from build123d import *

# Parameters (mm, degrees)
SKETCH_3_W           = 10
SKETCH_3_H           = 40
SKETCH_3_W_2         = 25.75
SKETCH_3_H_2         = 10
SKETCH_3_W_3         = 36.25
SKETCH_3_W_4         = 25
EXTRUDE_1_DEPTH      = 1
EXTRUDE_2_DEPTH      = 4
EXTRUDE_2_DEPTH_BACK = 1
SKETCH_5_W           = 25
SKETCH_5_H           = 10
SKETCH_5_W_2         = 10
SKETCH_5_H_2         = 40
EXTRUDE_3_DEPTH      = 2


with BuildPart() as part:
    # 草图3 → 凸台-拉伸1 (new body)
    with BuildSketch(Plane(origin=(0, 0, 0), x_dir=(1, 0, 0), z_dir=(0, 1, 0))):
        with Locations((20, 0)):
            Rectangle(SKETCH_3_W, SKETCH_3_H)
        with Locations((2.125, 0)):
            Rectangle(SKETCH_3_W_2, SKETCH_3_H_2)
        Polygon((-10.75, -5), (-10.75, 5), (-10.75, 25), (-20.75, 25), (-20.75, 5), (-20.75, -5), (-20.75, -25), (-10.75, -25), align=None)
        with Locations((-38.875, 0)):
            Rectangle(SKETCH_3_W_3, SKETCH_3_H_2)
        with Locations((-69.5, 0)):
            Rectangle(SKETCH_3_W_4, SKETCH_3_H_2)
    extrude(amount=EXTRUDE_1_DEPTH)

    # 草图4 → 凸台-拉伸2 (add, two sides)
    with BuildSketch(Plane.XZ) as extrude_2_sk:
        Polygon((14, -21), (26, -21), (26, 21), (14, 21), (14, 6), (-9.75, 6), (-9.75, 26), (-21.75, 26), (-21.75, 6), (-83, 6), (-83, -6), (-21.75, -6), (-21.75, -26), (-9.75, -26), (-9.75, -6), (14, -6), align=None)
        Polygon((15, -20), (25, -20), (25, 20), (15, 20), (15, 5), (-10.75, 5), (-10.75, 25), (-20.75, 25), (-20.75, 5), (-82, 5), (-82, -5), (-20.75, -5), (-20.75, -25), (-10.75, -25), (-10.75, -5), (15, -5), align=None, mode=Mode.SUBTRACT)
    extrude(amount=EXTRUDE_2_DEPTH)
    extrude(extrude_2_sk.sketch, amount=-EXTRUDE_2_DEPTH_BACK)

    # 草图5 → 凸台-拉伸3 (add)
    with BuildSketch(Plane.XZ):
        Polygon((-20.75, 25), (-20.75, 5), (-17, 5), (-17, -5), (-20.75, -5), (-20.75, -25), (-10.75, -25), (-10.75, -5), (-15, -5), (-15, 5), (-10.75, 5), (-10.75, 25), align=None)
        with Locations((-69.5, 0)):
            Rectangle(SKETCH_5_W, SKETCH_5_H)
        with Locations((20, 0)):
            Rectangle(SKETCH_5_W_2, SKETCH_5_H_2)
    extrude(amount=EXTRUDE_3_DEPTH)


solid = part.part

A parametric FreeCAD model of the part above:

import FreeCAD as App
import Part
import Sketcher
Q = App.Units.Quantity

doc = App.newDocument("Part")
body = doc.addObject("PartDesign::Body", "Body")

sketch1 = body.newObject("Sketcher::SketchObject", "Sketch")
sketch1.AttachmentSupport = (doc.getObject("XZ_Plane"), [""])
sketch1.MapMode = "FlatFace"
sketch1.addGeometry(Part.LineSegment(App.Vector(15, 5, 0), App.Vector(15, 20, 0)), False)
sketch1.addGeometry(Part.LineSegment(App.Vector(15, 20, 0), App.Vector(25, 20, 0)), False)
sketch1.addGeometry(Part.LineSegment(App.Vector(25, 20, 0), App.Vector(25, -20, 0)), False)
sketch1.addGeometry(Part.LineSegment(App.Vector(25, -20, 0), App.Vector(15, -20, 0)), False)
sketch1.addGeometry(Part.LineSegment(App.Vector(15, -20, 0), App.Vector(15, -5, 0)), False)
sketch1.addGeometry(Part.LineSegment(App.Vector(15, -5, 0), App.Vector(-10.75, -5, 0)), False)
sketch1.addGeometry(Part.LineSegment(App.Vector(-10.75, -5, 0), App.Vector(-10.75, -25, 0)), False)
sketch1.addGeometry(Part.LineSegment(App.Vector(-10.75, -25, 0), App.Vector(-20.75, -25, 0)), False)
sketch1.addGeometry(Part.LineSegment(App.Vector(-20.75, -25, 0), App.Vector(-20.75, -5, 0)), False)
sketch1.addGeometry(Part.LineSegment(App.Vector(-20.75, -5, 0), App.Vector(-82, -5, 0)), False)
sketch1.addGeometry(Part.LineSegment(App.Vector(-82, -5, 0), App.Vector(-82, 5, 0)), False)
sketch1.addGeometry(Part.LineSegment(App.Vector(-82, 5, 0), App.Vector(-20.75, 5, 0)), False)
sketch1.addGeometry(Part.LineSegment(App.Vector(-20.75, 5, 0), App.Vector(-20.75, 25, 0)), False)
sketch1.addGeometry(Part.LineSegment(App.Vector(-20.75, 25, 0), App.Vector(-10.75, 25, 0)), False)
sketch1.addGeometry(Part.LineSegment(App.Vector(-10.75, 25, 0), App.Vector(-10.75, 5, 0)), False)
sketch1.addGeometry(Part.LineSegment(App.Vector(-10.75, 5, 0), App.Vector(15, 5, 0)), False)
sketch1.addConstraint(Sketcher.Constraint("Coincident", 0, 2, 1, 1))
sketch1.addConstraint(Sketcher.Constraint("Coincident", 1, 2, 2, 1))
sketch1.addConstraint(Sketcher.Constraint("Coincident", 2, 2, 3, 1))
sketch1.addConstraint(Sketcher.Constraint("Coincident", 3, 2, 4, 1))
sketch1.addConstraint(Sketcher.Constraint("Coincident", 4, 2, 5, 1))
sketch1.addConstraint(Sketcher.Constraint("Coincident", 5, 2, 6, 1))
sketch1.addConstraint(Sketcher.Constraint("Coincident", 6, 2, 7, 1))
sketch1.addConstraint(Sketcher.Constraint("Coincident", 7, 2, 8, 1))
sketch1.addConstraint(Sketcher.Constraint("Coincident", 8, 2, 9, 1))
sketch1.addConstraint(Sketcher.Constraint("Coincident", 9, 2, 10, 1))
sketch1.addConstraint(Sketcher.Constraint("Coincident", 10, 2, 11, 1))
sketch1.addConstraint(Sketcher.Constraint("Coincident", 11, 2, 12, 1))
sketch1.addConstraint(Sketcher.Constraint("Coincident", 12, 2, 13, 1))
sketch1.addConstraint(Sketcher.Constraint("Coincident", 13, 2, 14, 1))
sketch1.addConstraint(Sketcher.Constraint("Coincident", 14, 2, 15, 1))
sketch1.addConstraint(Sketcher.Constraint("Coincident", 15, 2, 0, 1))
sketch1.addConstraint(Sketcher.Constraint("Vertical", 0))
sketch1.addConstraint(Sketcher.Constraint("Horizontal", 1))
sketch1.addConstraint(Sketcher.Constraint("Vertical", 2))
sketch1.addConstraint(Sketcher.Constraint("Horizontal", 3))
sketch1.addConstraint(Sketcher.Constraint("Vertical", 4))
sketch1.addConstraint(Sketcher.Constraint("Horizontal", 5))
sketch1.addConstraint(Sketcher.Constraint("Vertical", 6))
sketch1.addConstraint(Sketcher.Constraint("Horizontal", 7))
sketch1.addConstraint(Sketcher.Constraint("Vertical", 8))
sketch1.addConstraint(Sketcher.Constraint("Horizontal", 9))
sketch1.addConstraint(Sketcher.Constraint("Vertical", 10))
sketch1.addConstraint(Sketcher.Constraint("Horizontal", 11))
sketch1.addConstraint(Sketcher.Constraint("Vertical", 12))
sketch1.addConstraint(Sketcher.Constraint("Horizontal", 13))
sketch1.addConstraint(Sketcher.Constraint("Vertical", 14))
sketch1.addConstraint(Sketcher.Constraint("Horizontal", 15))
sketch1.addConstraint(Sketcher.Constraint("Symmetric", 0, 2, 3, 2, -1))
sketch1.addConstraint(Sketcher.Constraint("Symmetric", 8, 2, 11, 2, -1))
sketch1.addConstraint(Sketcher.Constraint("Symmetric", 6, 2, 13, 2, -1))
sketch1.addConstraint(Sketcher.Constraint("Horizontal", 5, 2, 8, 2))
sketch1.addConstraint(Sketcher.Constraint("Horizontal", 11, 2, 14, 2))
sketch1.addConstraint(Sketcher.Constraint("Equal", 3, 7))
sketch1.addConstraint(Sketcher.Constraint("Equal", 13, 10))
sketch1.addConstraint(Sketcher.Constraint("DistanceX", 1, 1, 1, 2, Q("10 mm")))
sketch1.addConstraint(Sketcher.Constraint("DistanceY", 0, 1, 0, 2, Q("15 mm")))
sketch1.addConstraint(Sketcher.Constraint("DistanceY", 6, 2, 6, 1, Q("20 mm")))
sketch1.addConstraint(Sketcher.Constraint("DistanceX", -1, 1, 0, 2, Q("15 mm")))
sketch1.addConstraint(Sketcher.Constraint("DistanceX", 9, 2, -1, 1, Q("82 mm")))
sketch1.addConstraint(Sketcher.Constraint("DistanceX", 5, 2, 5, 1, Q("25.75 mm")))
pad1 = body.newObject("PartDesign::Pad", "Pad")
pad1.Profile = sketch1
pad1.Length = 1
pad1.Reversed = True

sketch2 = body.newObject("Sketcher::SketchObject", "Sketch001")
sketch2.AttachmentSupport = (doc.getObject("XZ_Plane"), [""])
sketch2.MapMode = "FlatFace"
sketch2.addGeometry(Part.LineSegment(App.Vector(14, -21, 0), App.Vector(26, -21, 0)), False)
sketch2.addGeometry(Part.LineSegment(App.Vector(26, -21, 0), App.Vector(26, 21, 0)), False)
sketch2.addGeometry(Part.LineSegment(App.Vector(26, 21, 0), App.Vector(14, 21, 0)), False)
sketch2.addGeometry(Part.LineSegment(App.Vector(14, 21, 0), App.Vector(14, 6, 0)), False)
sketch2.addGeometry(Part.LineSegment(App.Vector(14, 6, 0), App.Vector(-9.75, 6, 0)), False)
sketch2.addGeometry(Part.LineSegment(App.Vector(-9.75, 6, 0), App.Vector(-9.75, 26, 0)), False)
sketch2.addGeometry(Part.LineSegment(App.Vector(-9.75, 26, 0), App.Vector(-21.75, 26, 0)), False)
sketch2.addGeometry(Part.LineSegment(App.Vector(-21.75, 26, 0), App.Vector(-21.75, 6, 0)), False)
sketch2.addGeometry(Part.LineSegment(App.Vector(-21.75, 6, 0), App.Vector(-83, 6, 0)), False)
sketch2.addGeometry(Part.LineSegment(App.Vector(-83, 6, 0), App.Vector(-83, -6, 0)), False)
sketch2.addGeometry(Part.LineSegment(App.Vector(-83, -6, 0), App.Vector(-21.75, -6, 0)), False)
sketch2.addGeometry(Part.LineSegment(App.Vector(-21.75, -6, 0), App.Vector(-21.75, -26, 0)), False)
sketch2.addGeometry(Part.LineSegment(App.Vector(-21.75, -26, 0), App.Vector(-9.75, -26, 0)), False)
sketch2.addGeometry(Part.LineSegment(App.Vector(-9.75, -26, 0), App.Vector(-9.75, -6, 0)), False)
sketch2.addGeometry(Part.LineSegment(App.Vector(-9.75, -6, 0), App.Vector(14, -6, 0)), False)
sketch2.addGeometry(Part.LineSegment(App.Vector(14, -6, 0), App.Vector(14, -21, 0)), False)
sketch2.addGeometry(Part.LineSegment(App.Vector(25, -20, 0), App.Vector(15, -20, 0)), False)
sketch2.addGeometry(Part.LineSegment(App.Vector(15, -20, 0), App.Vector(15, -5, 0)), False)
sketch2.addGeometry(Part.LineSegment(App.Vector(15, -5, 0), App.Vector(-10.75, -5, 0)), False)
sketch2.addGeometry(Part.LineSegment(App.Vector(-10.75, -5, 0), App.Vector(-10.75, -25, 0)), False)
sketch2.addGeometry(Part.LineSegment(App.Vector(-10.75, -25, 0), App.Vector(-20.75, -25, 0)), False)
sketch2.addGeometry(Part.LineSegment(App.Vector(-20.75, -25, 0), App.Vector(-20.75, -5, 0)), False)
sketch2.addGeometry(Part.LineSegment(App.Vector(-20.75, -5, 0), App.Vector(-82, -5, 0)), False)
sketch2.addGeometry(Part.LineSegment(App.Vector(-82, -5, 0), App.Vector(-82, 5, 0)), False)
sketch2.addGeometry(Part.LineSegment(App.Vector(-82, 5, 0), App.Vector(-20.75, 5, 0)), False)
sketch2.addGeometry(Part.LineSegment(App.Vector(-20.75, 5, 0), App.Vector(-20.75, 25, 0)), False)
sketch2.addGeometry(Part.LineSegment(App.Vector(-20.75, 25, 0), App.Vector(-10.75, 25, 0)), False)
sketch2.addGeometry(Part.LineSegment(App.Vector(-10.75, 25, 0), App.Vector(-10.75, 5, 0)), False)
sketch2.addGeometry(Part.LineSegment(App.Vector(-10.75, 5, 0), App.Vector(15, 5, 0)), False)
sketch2.addGeometry(Part.LineSegment(App.Vector(15, 5, 0), App.Vector(15, 20, 0)), False)
sketch2.addGeometry(Part.LineSegment(App.Vector(15, 20, 0), App.Vector(25, 20, 0)), False)
sketch2.addGeometry(Part.LineSegment(App.Vector(25, 20, 0), App.Vector(25, -20, 0)), False)
sketch2.addConstraint(Sketcher.Constraint("Coincident", 0, 2, 1, 1))
sketch2.addConstraint(Sketcher.Constraint("Coincident", 1, 2, 2, 1))
sketch2.addConstraint(Sketcher.Constraint("Coincident", 2, 2, 3, 1))
sketch2.addConstraint(Sketcher.Constraint("Coincident", 3, 2, 4, 1))
sketch2.addConstraint(Sketcher.Constraint("Coincident", 4, 2, 5, 1))
sketch2.addConstraint(Sketcher.Constraint("Coincident", 5, 2, 6, 1))
sketch2.addConstraint(Sketcher.Constraint("Coincident", 6, 2, 7, 1))
sketch2.addConstraint(Sketcher.Constraint("Coincident", 7, 2, 8, 1))
sketch2.addConstraint(Sketcher.Constraint("Coincident", 8, 2, 9, 1))
sketch2.addConstraint(Sketcher.Constraint("Coincident", 9, 2, 10, 1))
sketch2.addConstraint(Sketcher.Constraint("Coincident", 10, 2, 11, 1))
sketch2.addConstraint(Sketcher.Constraint("Coincident", 11, 2, 12, 1))
sketch2.addConstraint(Sketcher.Constraint("Coincident", 12, 2, 13, 1))
sketch2.addConstraint(Sketcher.Constraint("Coincident", 13, 2, 14, 1))
sketch2.addConstraint(Sketcher.Constraint("Coincident", 14, 2, 15, 1))
sketch2.addConstraint(Sketcher.Constraint("Coincident", 15, 2, 0, 1))
sketch2.addConstraint(Sketcher.Constraint("Coincident", 16, 2, 17, 1))
sketch2.addConstraint(Sketcher.Constraint("Coincident", 17, 2, 18, 1))
sketch2.addConstraint(Sketcher.Constraint("Coincident", 18, 2, 19, 1))
sketch2.addConstraint(Sketcher.Constraint("Coincident", 19, 2, 20, 1))
sketch2.addConstraint(Sketcher.Constraint("Coincident", 20, 2, 21, 1))
sketch2.addConstraint(Sketcher.Constraint("Coincident", 21, 2, 22, 1))
sketch2.addConstraint(Sketcher.Constraint("Coincident", 22, 2, 23, 1))
sketch2.addConstraint(Sketcher.Constraint("Coincident", 23, 2, 24, 1))
sketch2.addConstraint(Sketcher.Constraint("Coincident", 24, 2, 25, 1))
sketch2.addConstraint(Sketcher.Constraint("Coincident", 25, 2, 26, 1))
sketch2.addConstraint(Sketcher.Constraint("Coincident", 26, 2, 27, 1))
sketch2.addConstraint(Sketcher.Constraint("Coincident", 27, 2, 28, 1))
sketch2.addConstraint(Sketcher.Constraint("Coincident", 28, 2, 29, 1))
sketch2.addConstraint(Sketcher.Constraint("Coincident", 29, 2, 30, 1))
sketch2.addConstraint(Sketcher.Constraint("Coincident", 30, 2, 31, 1))
sketch2.addConstraint(Sketcher.Constraint("Coincident", 31, 2, 16, 1))
sketch2.addConstraint(Sketcher.Constraint("Horizontal", 0))
sketch2.addConstraint(Sketcher.Constraint("Vertical", 1))
sketch2.addConstraint(Sketcher.Constraint("Horizontal", 2))
sketch2.addConstraint(Sketcher.Constraint("Vertical", 3))
sketch2.addConstraint(Sketcher.Constraint("Horizontal", 4))
sketch2.addConstraint(Sketcher.Constraint("Vertical", 5))
sketch2.addConstraint(Sketcher.Constraint("Horizontal", 6))
sketch2.addConstraint(Sketcher.Constraint("Vertical", 7))
sketch2.addConstraint(Sketcher.Constraint("Horizontal", 8))
sketch2.addConstraint(Sketcher.Constraint("Vertical", 9))
sketch2.addConstraint(Sketcher.Constraint("Horizontal", 10))
sketch2.addConstraint(Sketcher.Constraint("Vertical", 11))
sketch2.addConstraint(Sketcher.Constraint("Horizontal", 12))
sketch2.addConstraint(Sketcher.Constraint("Vertical", 13))
sketch2.addConstraint(Sketcher.Constraint("Horizontal", 14))
sketch2.addConstraint(Sketcher.Constraint("Vertical", 15))
sketch2.addConstraint(Sketcher.Constraint("Horizontal", 16))
sketch2.addConstraint(Sketcher.Constraint("Vertical", 17))
sketch2.addConstraint(Sketcher.Constraint("Horizontal", 18))
sketch2.addConstraint(Sketcher.Constraint("Vertical", 19))
sketch2.addConstraint(Sketcher.Constraint("Horizontal", 20))
sketch2.addConstraint(Sketcher.Constraint("Vertical", 21))
sketch2.addConstraint(Sketcher.Constraint("Horizontal", 22))
sketch2.addConstraint(Sketcher.Constraint("Vertical", 23))
sketch2.addConstraint(Sketcher.Constraint("Horizontal", 24))
sketch2.addConstraint(Sketcher.Constraint("Vertical", 25))
sketch2.addConstraint(Sketcher.Constraint("Horizontal", 26))
sketch2.addConstraint(Sketcher.Constraint("Vertical", 27))
sketch2.addConstraint(Sketcher.Constraint("Horizontal", 28))
sketch2.addConstraint(Sketcher.Constraint("Vertical", 29))
sketch2.addConstraint(Sketcher.Constraint("Horizontal", 30))
sketch2.addConstraint(Sketcher.Constraint("Vertical", 31))
sketch2.addConstraint(Sketcher.Constraint("Symmetric", 7, 2, 10, 2, -1))
sketch2.addConstraint(Sketcher.Constraint("Symmetric", 5, 2, 12, 2, -1))
sketch2.addConstraint(Sketcher.Constraint("Symmetric", 3, 2, 14, 2, -1))
sketch2.addConstraint(Sketcher.Constraint("Symmetric", 21, 2, 24, 2, -1))
sketch2.addConstraint(Sketcher.Constraint("Symmetric", 19, 2, 26, 2, -1))
sketch2.addConstraint(Sketcher.Constraint("Symmetric", 17, 2, 28, 2, -1))
sketch2.addConstraint(Sketcher.Constraint("Horizontal", 4, 2, 7, 2))
sketch2.addConstraint(Sketcher.Constraint("Horizontal", 18, 2, 21, 2))
sketch2.addConstraint(Sketcher.Constraint("Equal", 2, 6))
sketch2.addConstraint(Sketcher.Constraint("Equal", 16, 20))
sketch2.addConstraint(Sketcher.Constraint("Equal", 10, 22))
sketch2.addConstraint(Sketcher.Constraint("Equal", 12, 9))
sketch2.addConstraint(Sketcher.Constraint("Equal", 3, 15))
sketch2.addConstraint(Sketcher.Constraint("Equal", 15, 17))
sketch2.addConstraint(Sketcher.Constraint("Equal", 13, 19))
sketch2.addConstraint(Sketcher.Constraint("Equal", 30, 23))
sketch2.addConstraint(Sketcher.Constraint("Equal", 17, 29))
sketch2.addConstraint(Sketcher.Constraint("DistanceX", 0, 1, 0, 2, Q("12 mm")))
sketch2.addConstraint(Sketcher.Constraint("DistanceX", 16, 2, 16, 1, Q("10 mm")))
sketch2.addConstraint(Sketcher.Constraint("DistanceY", 1, 1, 1, 2, Q("42 mm")))
sketch2.addConstraint(Sketcher.Constraint("DistanceY", 5, 1, 5, 2, Q("20 mm")))
sketch2.addConstraint(Sketcher.Constraint("DistanceX", -1, 1, 0, 2, Q("26 mm")))
sketch2.addConstraint(Sketcher.Constraint("DistanceX", 8, 2, -1, 1, Q("83 mm")))
sketch2.addConstraint(Sketcher.Constraint("DistanceX", -1, 1, 16, 2, Q("15 mm")))
sketch2.addConstraint(Sketcher.Constraint("DistanceX", 22, 2, -1, 1, Q("82 mm")))
sketch2.addConstraint(Sketcher.Constraint("DistanceX", 4, 2, 4, 1, Q("23.75 mm")))
pad2 = body.newObject("PartDesign::Pad", "Pad001")
pad2.Profile = sketch2
pad2.Type = "TwoLengths"
pad2.Length = 4
pad2.Length2 = 1

sketch3 = body.newObject("Sketcher::SketchObject", "Sketch002")
sketch3.AttachmentSupport = (doc.getObject("XZ_Plane"), [""])
sketch3.MapMode = "FlatFace"
sketch3.addGeometry(Part.LineSegment(App.Vector(-20.75, 25, 0), App.Vector(-20.75, 5, 0)), False)
sketch3.addGeometry(Part.LineSegment(App.Vector(-20.75, 5, 0), App.Vector(-17, 5, 0)), False)
sketch3.addGeometry(Part.LineSegment(App.Vector(-17, 5, 0), App.Vector(-17, -5, 0)), False)
sketch3.addGeometry(Part.LineSegment(App.Vector(-17, -5, 0), App.Vector(-20.75, -5, 0)), False)
sketch3.addGeometry(Part.LineSegment(App.Vector(-20.75, -5, 0), App.Vector(-20.75, -25, 0)), False)
sketch3.addGeometry(Part.LineSegment(App.Vector(-20.75, -25, 0), App.Vector(-10.75, -25, 0)), False)
sketch3.addGeometry(Part.LineSegment(App.Vector(-10.75, -25, 0), App.Vector(-10.75, -5, 0)), False)
sketch3.addGeometry(Part.LineSegment(App.Vector(-10.75, -5, 0), App.Vector(-15, -5, 0)), False)
sketch3.addGeometry(Part.LineSegment(App.Vector(-15, -5, 0), App.Vector(-15, 5, 0)), False)
sketch3.addGeometry(Part.LineSegment(App.Vector(-15, 5, 0), App.Vector(-10.75, 5, 0)), False)
sketch3.addGeometry(Part.LineSegment(App.Vector(-10.75, 5, 0), App.Vector(-10.75, 25, 0)), False)
sketch3.addGeometry(Part.LineSegment(App.Vector(-10.75, 25, 0), App.Vector(-20.75, 25, 0)), False)
sketch3.addGeometry(Part.LineSegment(App.Vector(-82, 5, 0), App.Vector(-82, -5, 0)), False)
sketch3.addGeometry(Part.LineSegment(App.Vector(-82, -5, 0), App.Vector(-57, -5, 0)), False)
sketch3.addGeometry(Part.LineSegment(App.Vector(-57, -5, 0), App.Vector(-57, 5, 0)), False)
sketch3.addGeometry(Part.LineSegment(App.Vector(-57, 5, 0), App.Vector(-82, 5, 0)), False)
sketch3.addGeometry(Part.LineSegment(App.Vector(15, 20, 0), App.Vector(15, -20, 0)), False)
sketch3.addGeometry(Part.LineSegment(App.Vector(15, -20, 0), App.Vector(25, -20, 0)), False)
sketch3.addGeometry(Part.LineSegment(App.Vector(25, -20, 0), App.Vector(25, 20, 0)), False)
sketch3.addGeometry(Part.LineSegment(App.Vector(25, 20, 0), App.Vector(15, 20, 0)), False)
sketch3.addConstraint(Sketcher.Constraint("Coincident", 0, 2, 1, 1))
sketch3.addConstraint(Sketcher.Constraint("Coincident", 1, 2, 2, 1))
sketch3.addConstraint(Sketcher.Constraint("Coincident", 2, 2, 3, 1))
sketch3.addConstraint(Sketcher.Constraint("Coincident", 3, 2, 4, 1))
sketch3.addConstraint(Sketcher.Constraint("Coincident", 4, 2, 5, 1))
sketch3.addConstraint(Sketcher.Constraint("Coincident", 5, 2, 6, 1))
sketch3.addConstraint(Sketcher.Constraint("Coincident", 6, 2, 7, 1))
sketch3.addConstraint(Sketcher.Constraint("Coincident", 7, 2, 8, 1))
sketch3.addConstraint(Sketcher.Constraint("Coincident", 8, 2, 9, 1))
sketch3.addConstraint(Sketcher.Constraint("Coincident", 9, 2, 10, 1))
sketch3.addConstraint(Sketcher.Constraint("Coincident", 10, 2, 11, 1))
sketch3.addConstraint(Sketcher.Constraint("Coincident", 11, 2, 0, 1))
sketch3.addConstraint(Sketcher.Constraint("Coincident", 12, 2, 13, 1))
sketch3.addConstraint(Sketcher.Constraint("Coincident", 13, 2, 14, 1))
sketch3.addConstraint(Sketcher.Constraint("Coincident", 14, 2, 15, 1))
sketch3.addConstraint(Sketcher.Constraint("Coincident", 15, 2, 12, 1))
sketch3.addConstraint(Sketcher.Constraint("Coincident", 16, 2, 17, 1))
sketch3.addConstraint(Sketcher.Constraint("Coincident", 17, 2, 18, 1))
sketch3.addConstraint(Sketcher.Constraint("Coincident", 18, 2, 19, 1))
sketch3.addConstraint(Sketcher.Constraint("Coincident", 19, 2, 16, 1))
sketch3.addConstraint(Sketcher.Constraint("Vertical", 0))
sketch3.addConstraint(Sketcher.Constraint("Horizontal", 1))
sketch3.addConstraint(Sketcher.Constraint("Vertical", 2))
sketch3.addConstraint(Sketcher.Constraint("Horizontal", 3))
sketch3.addConstraint(Sketcher.Constraint("Vertical", 4))
sketch3.addConstraint(Sketcher.Constraint("Horizontal", 5))
sketch3.addConstraint(Sketcher.Constraint("Vertical", 6))
sketch3.addConstraint(Sketcher.Constraint("Horizontal", 7))
sketch3.addConstraint(Sketcher.Constraint("Vertical", 8))
sketch3.addConstraint(Sketcher.Constraint("Horizontal", 9))
sketch3.addConstraint(Sketcher.Constraint("Vertical", 10))
sketch3.addConstraint(Sketcher.Constraint("Horizontal", 11))
sketch3.addConstraint(Sketcher.Constraint("Vertical", 12))
sketch3.addConstraint(Sketcher.Constraint("Horizontal", 13))
sketch3.addConstraint(Sketcher.Constraint("Vertical", 14))
sketch3.addConstraint(Sketcher.Constraint("Horizontal", 15))
sketch3.addConstraint(Sketcher.Constraint("Vertical", 16))
sketch3.addConstraint(Sketcher.Constraint("Horizontal", 17))
sketch3.addConstraint(Sketcher.Constraint("Vertical", 18))
sketch3.addConstraint(Sketcher.Constraint("Horizontal", 19))
sketch3.addConstraint(Sketcher.Constraint("Symmetric", 0, 2, 3, 2, -1))
sketch3.addConstraint(Sketcher.Constraint("Symmetric", 6, 2, 9, 2, -1))
sketch3.addConstraint(Sketcher.Constraint("Horizontal", 3, 2, 6, 2))
sketch3.addConstraint(Sketcher.Constraint("Horizontal", 7, 2, 12, 2))
sketch3.addConstraint(Sketcher.Constraint("Horizontal", 9, 2, 14, 2))
sketch3.addConstraint(Sketcher.Constraint("Equal", 11, 17))
sketch3.addConstraint(Sketcher.Constraint("Equal", 19, 2))
sketch3.addConstraint(Sketcher.Constraint("Equal", 0, 4))
sketch3.addConstraint(Sketcher.Constraint("DistanceX", 5, 1, 5, 2, Q("10 mm")))
sketch3.addConstraint(Sketcher.Constraint("DistanceX", 13, 1, 13, 2, Q("25 mm")))
sketch3.addConstraint(Sketcher.Constraint("DistanceY", 0, 2, 0, 1, Q("20 mm")))
sketch3.addConstraint(Sketcher.Constraint("DistanceY", 16, 2, 16, 1, Q("40 mm")))
sketch3.addConstraint(Sketcher.Constraint("DistanceX", 1, 2, -1, 1, Q("17 mm")))
sketch3.addConstraint(Sketcher.Constraint("DistanceX", 7, 2, -1, 1, Q("15 mm")))
sketch3.addConstraint(Sketcher.Constraint("DistanceX", 12, 2, -1, 1, Q("82 mm")))
sketch3.addConstraint(Sketcher.Constraint("DistanceX", -1, 1, 16, 2, Q("15 mm")))
sketch3.addConstraint(Sketcher.Constraint("DistanceY", 16, 2, -1, 1, Q("20 mm")))
sketch3.addConstraint(Sketcher.Constraint("DistanceX", 1, 1, 1, 2, Q("3.75 mm")))
pad3 = body.newObject("PartDesign::Pad", "Pad002")
pad3.Profile = sketch3
pad3.Length = 2

doc.recompute()
